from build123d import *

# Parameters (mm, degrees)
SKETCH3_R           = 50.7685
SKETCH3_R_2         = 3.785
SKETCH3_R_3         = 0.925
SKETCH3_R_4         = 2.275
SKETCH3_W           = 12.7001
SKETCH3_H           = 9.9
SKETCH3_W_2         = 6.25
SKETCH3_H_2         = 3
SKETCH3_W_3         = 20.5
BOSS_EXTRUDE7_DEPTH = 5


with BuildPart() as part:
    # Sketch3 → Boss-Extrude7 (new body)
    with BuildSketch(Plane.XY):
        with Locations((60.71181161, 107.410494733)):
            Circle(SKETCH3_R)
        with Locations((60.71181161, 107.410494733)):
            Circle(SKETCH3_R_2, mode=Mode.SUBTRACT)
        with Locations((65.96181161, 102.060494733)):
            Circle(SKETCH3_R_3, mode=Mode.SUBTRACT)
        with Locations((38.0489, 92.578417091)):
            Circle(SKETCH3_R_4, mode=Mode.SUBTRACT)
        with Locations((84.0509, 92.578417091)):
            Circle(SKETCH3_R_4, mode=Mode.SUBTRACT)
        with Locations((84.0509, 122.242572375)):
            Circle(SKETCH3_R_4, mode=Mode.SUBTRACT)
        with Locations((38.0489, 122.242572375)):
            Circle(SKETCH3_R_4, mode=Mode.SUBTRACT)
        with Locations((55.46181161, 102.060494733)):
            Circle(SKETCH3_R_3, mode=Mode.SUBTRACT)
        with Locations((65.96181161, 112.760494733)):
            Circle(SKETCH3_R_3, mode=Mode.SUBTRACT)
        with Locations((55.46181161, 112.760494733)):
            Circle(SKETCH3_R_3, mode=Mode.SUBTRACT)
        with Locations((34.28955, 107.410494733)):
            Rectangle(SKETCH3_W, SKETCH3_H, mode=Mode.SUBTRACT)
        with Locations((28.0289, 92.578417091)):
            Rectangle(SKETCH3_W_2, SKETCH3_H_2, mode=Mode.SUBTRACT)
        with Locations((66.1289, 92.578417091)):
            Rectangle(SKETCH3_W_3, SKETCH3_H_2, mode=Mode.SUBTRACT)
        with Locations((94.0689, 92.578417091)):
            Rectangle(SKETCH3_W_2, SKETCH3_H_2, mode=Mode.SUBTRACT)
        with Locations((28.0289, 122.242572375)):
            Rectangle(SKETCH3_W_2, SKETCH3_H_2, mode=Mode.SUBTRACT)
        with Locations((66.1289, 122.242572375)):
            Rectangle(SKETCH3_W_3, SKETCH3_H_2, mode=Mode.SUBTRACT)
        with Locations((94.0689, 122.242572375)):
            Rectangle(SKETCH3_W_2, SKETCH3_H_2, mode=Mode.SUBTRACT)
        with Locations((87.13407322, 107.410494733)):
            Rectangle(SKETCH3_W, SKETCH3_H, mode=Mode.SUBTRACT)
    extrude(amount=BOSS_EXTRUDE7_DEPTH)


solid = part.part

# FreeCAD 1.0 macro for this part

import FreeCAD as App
import Part
import Sketcher

V = App.Vector


def add_polygon(sketch, points):
    """Adds a closed chain of lines whose ends are joined by coincident constraints."""
    first, n = sketch.GeometryCount, len(points)
    for a, b in zip(points, points[1:] + points[:1]):
        sketch.addGeometry(Part.LineSegment(App.Vector(*a, 0), App.Vector(*b, 0)), False)
    for i in range(n):
        sketch.addConstraint(Sketcher.Constraint("Coincident", first + i, 2, first + (i + 1) % n, 1))

doc = App.newDocument("Part")
body = doc.addObject("PartDesign::Body", "Body")

# Sketch on XY plane
sketch1 = doc.addObject("Sketcher::SketchObject", "Sketch")
body.addObject(sketch1)
sketch1.AttachmentSupport = (doc.XY_Plane, [""])
sketch1.MapMode = "FlatFace"
sketch1.addGeometry(Part.Circle(V(60.7, 107.4, 0), V(0, 0, 1), 50.8), False)  # 0
add_polygon(sketch1, [(31.2, 91.1), (24.9, 91.1), (24.9, 94.1), (31.2, 94.1)])  # lines 1-4
sketch1.addGeometry(Part.Circle(V(38, 92.6, 0), V(0, 0, 1), 2.3), False)  # 5
add_polygon(sketch1, [(40.6, 102.5), (27.9, 102.5), (27.9, 112.4), (40.6, 112.4)])  # lines 6-9
sketch1.addGeometry(Part.Circle(V(55.5, 102.1, 0), V(0, 0, 1), 0.9), False)  # 10
sketch1.addGeometry(Part.Circle(V(60.7, 107.4, 0), V(0, 0, 1), 3.8), False)  # 11
add_polygon(sketch1, [(76.4, 91.1), (55.9, 91.1), (55.9, 94.1), (76.4, 94.1)])  # lines 12-15
sketch1.addGeometry(Part.Circle(V(84.1, 92.6, 0), V(0, 0, 1), 2.3), False)  # 16
add_polygon(sketch1, [(97.2, 91.1), (90.9, 91.1), (90.9, 94.1), (97.2, 94.1)])  # lines 17-20
sketch1.addGeometry(Part.Circle(V(66, 102.1, 0), V(0, 0, 1), 0.9), False)  # 21
add_polygon(sketch1, [(93.5, 102.5), (80.8, 102.5), (80.8, 112.4), (93.5, 112.4)])  # lines 22-25
sketch1.addGeometry(Part.Circle(V(55.5, 112.8, 0), V(0, 0, 1), 0.9), False)  # 26
add_polygon(sketch1, [(31.2, 120.7), (24.9, 120.7), (24.9, 123.7), (31.2, 123.7)])  # lines 27-30
sketch1.addGeometry(Part.Circle(V(38, 122.2, 0), V(0, 0, 1), 2.3), False)  # 31
sketch1.addGeometry(Part.Circle(V(66, 112.8, 0), V(0, 0, 1), 0.9), False)  # 32
add_polygon(sketch1, [(76.4, 120.7), (55.9, 120.7), (55.9, 123.7), (76.4, 123.7)])  # lines 33-36
sketch1.addGeometry(Part.Circle(V(84.1, 122.2, 0), V(0, 0, 1), 2.3), False)  # 37
add_polygon(sketch1, [(97.2, 120.7), (90.9, 120.7), (90.9, 123.7), (97.2, 123.7)])  # lines 38-41
sketch1.addConstraint([
    Sketcher.Constraint("Horizontal", 1),
    Sketcher.Constraint("Vertical", 2),
    Sketcher.Constraint("Horizontal", 3),
    Sketcher.Constraint("Vertical", 4),
    Sketcher.Constraint("Horizontal", 6),
    Sketcher.Constraint("Vertical", 7),
    Sketcher.Constraint("Horizontal", 8),
    Sketcher.Constraint("Vertical", 9),
    Sketcher.Constraint("Horizontal", 12),
    Sketcher.Constraint("Vertical", 13),
    Sketcher.Constraint("Horizontal", 14),
    Sketcher.Constraint("Vertical", 15),
    Sketcher.Constraint("Horizontal", 17),
    Sketcher.Constraint("Vertical", 18),
    Sketcher.Constraint("Horizontal", 19),
    Sketcher.Constraint("Vertical", 20),
    Sketcher.Constraint("Horizontal", 22),
    Sketcher.Constraint("Vertical", 23),
    Sketcher.Constraint("Horizontal", 24),
    Sketcher.Constraint("Vertical", 25),
    Sketcher.Constraint("Horizontal", 27),
    Sketcher.Constraint("Vertical", 28),
    Sketcher.Constraint("Horizontal", 29),
    Sketcher.Constraint("Vertical", 30),
    Sketcher.Constraint("Horizontal", 33),
    Sketcher.Constraint("Vertical", 34),
    Sketcher.Constraint("Horizontal", 35),
    Sketcher.Constraint("Vertical", 36),
    Sketcher.Constraint("Horizontal", 38),
    Sketcher.Constraint("Vertical", 39),
    Sketcher.Constraint("Horizontal", 40),
    Sketcher.Constraint("Vertical", 41),
    Sketcher.Constraint("Coincident", 11, 3, 0, 3),
    Sketcher.Constraint("Equal", 5, 16),
    Sketcher.Constraint("Equal", 10, 21),
    Sketcher.Constraint("Equal", 21, 26),
    Sketcher.Constraint("Equal", 16, 31),
    Sketcher.Constraint("Equal", 26, 32),
    Sketcher.Constraint("Equal", 31, 37),
    Sketcher.Constraint("Horizontal", 5, 3, 16, 3),
    Sketcher.Constraint("Horizontal", 10, 3, 21, 3),
    Sketcher.Constraint("Horizontal", 26, 3, 32, 3),
    Sketcher.Constraint("Horizontal", 31, 3, 37, 3),
    Sketcher.Constraint("Horizontal", 4, 2, 12, 2),
    Sketcher.Constraint("Horizontal", 3, 2, 13, 2),
    Sketcher.Constraint("Horizontal", 15, 2, 17, 2),
    Sketcher.Constraint("Horizontal", 14, 2, 18, 2),
    Sketcher.Constraint("Horizontal", 9, 2, 22, 2),
    Sketcher.Constraint("Horizontal", 8, 2, 23, 2),
    Sketcher.Constraint("Horizontal", 30, 2, 33, 2),
    Sketcher.Constraint("Horizontal", 29, 2, 34, 2),
    Sketcher.Constraint("Horizontal", 36, 2, 38, 2),
    Sketcher.Constraint("Horizontal", 35, 2, 39, 2),
    Sketcher.Constraint("Vertical", 10, 3, 26, 3),
    Sketcher.Constraint("Vertical", 5, 3, 31, 3),
    Sketcher.Constraint("Vertical", 21, 3, 32, 3),
    Sketcher.Constraint("Vertical", 16, 3, 37, 3),
    Sketcher.Constraint("Vertical", 2, 2, 27, 2),
    Sketcher.Constraint("Vertical", 4, 2, 29, 2),
    Sketcher.Constraint("Vertical", 13, 2, 33, 2),
    Sketcher.Constraint("Vertical", 15, 2, 35, 2),
    Sketcher.Constraint("Vertical", 18, 2, 38, 2),
    Sketcher.Constraint("Vertical", 20, 2, 40, 2),
    Sketcher.Constraint("Equal", 3, 17),
    Sketcher.Constraint("Equal", 8, 22),
    Sketcher.Constraint("Equal", 20, 28),
    Sketcher.Constraint("Diameter", 5, 4.55),
    Sketcher.Constraint("Diameter", 10, 1.85),
    Sketcher.Constraint("Diameter", 11, 7.57),
    Sketcher.Constraint("DistanceY", 2, 1, 2, 2, 3.0),
    Sketcher.Constraint("Diameter", 0, 101.537),
    Sketcher.Constraint("DistanceX", 12, 2, 12, 1, 20.5),
    Sketcher.Constraint("DistanceY", 7, 1, 7, 2, 9.9),
    Sketcher.Constraint("DistanceX", 1, 2, 1, 1, 6.25),
    Sketcher.Constraint("DistanceX", 10, 3, 21, 3, 10.5),
    Sketcher.Constraint("DistanceY", 10, 3, 26, 3, 10.7),
    Sketcher.Constraint("DistanceY", 1, 2, 5, 3, 1.5),
    Sketcher.Constraint("DistanceY", 8, 2, 26, 3, 0.4),
    Sketcher.Constraint("DistanceY", 27, 2, 31, 3, 1.5),
    Sketcher.Constraint("DistanceX", 10, 3, 0, 3, 5.25),
    Sketcher.Constraint("DistanceY", 10, 3, 0, 3, 5.35),
    Sketcher.Constraint("DistanceX", 5, 3, 12, 2, 17.83),
    Sketcher.Constraint("DistanceX", 6, 2, 6, 1, 12.7001),
    Sketcher.Constraint("DistanceX", 5, 3, 16, 3, 46.002),
    Sketcher.Constraint("DistanceX", 1, 2, 5, 3, 13.145),
    Sketcher.Constraint("DistanceX", 16, 3, 17, 2, 6.893),
    Sketcher.Constraint("DistanceX", -1, 1, 5, 3, 38.0489),
    Sketcher.Constraint("DistanceX", -1, 1, 6, 2, 27.9395),
    Sketcher.Constraint("DistanceX", -1, 1, 0, 3, 60.711812),
    Sketcher.Constraint("DistanceX", 21, 3, 22, 2, 14.822212),
    Sketcher.Constraint("DistanceY", -1, 1, 0, 3, 107.410495),
    Sketcher.Constraint("DistanceY", -1, 1, 5, 3, 92.578417),
    Sketcher.Constraint("DistanceY", -1, 1, 31, 3, 122.242572),
])
pad1 = doc.addObject("PartDesign::Pad", "Pad")
body.addObject(pad1)
pad1.Profile = sketch1
pad1.Length = 5

doc.recompute()
